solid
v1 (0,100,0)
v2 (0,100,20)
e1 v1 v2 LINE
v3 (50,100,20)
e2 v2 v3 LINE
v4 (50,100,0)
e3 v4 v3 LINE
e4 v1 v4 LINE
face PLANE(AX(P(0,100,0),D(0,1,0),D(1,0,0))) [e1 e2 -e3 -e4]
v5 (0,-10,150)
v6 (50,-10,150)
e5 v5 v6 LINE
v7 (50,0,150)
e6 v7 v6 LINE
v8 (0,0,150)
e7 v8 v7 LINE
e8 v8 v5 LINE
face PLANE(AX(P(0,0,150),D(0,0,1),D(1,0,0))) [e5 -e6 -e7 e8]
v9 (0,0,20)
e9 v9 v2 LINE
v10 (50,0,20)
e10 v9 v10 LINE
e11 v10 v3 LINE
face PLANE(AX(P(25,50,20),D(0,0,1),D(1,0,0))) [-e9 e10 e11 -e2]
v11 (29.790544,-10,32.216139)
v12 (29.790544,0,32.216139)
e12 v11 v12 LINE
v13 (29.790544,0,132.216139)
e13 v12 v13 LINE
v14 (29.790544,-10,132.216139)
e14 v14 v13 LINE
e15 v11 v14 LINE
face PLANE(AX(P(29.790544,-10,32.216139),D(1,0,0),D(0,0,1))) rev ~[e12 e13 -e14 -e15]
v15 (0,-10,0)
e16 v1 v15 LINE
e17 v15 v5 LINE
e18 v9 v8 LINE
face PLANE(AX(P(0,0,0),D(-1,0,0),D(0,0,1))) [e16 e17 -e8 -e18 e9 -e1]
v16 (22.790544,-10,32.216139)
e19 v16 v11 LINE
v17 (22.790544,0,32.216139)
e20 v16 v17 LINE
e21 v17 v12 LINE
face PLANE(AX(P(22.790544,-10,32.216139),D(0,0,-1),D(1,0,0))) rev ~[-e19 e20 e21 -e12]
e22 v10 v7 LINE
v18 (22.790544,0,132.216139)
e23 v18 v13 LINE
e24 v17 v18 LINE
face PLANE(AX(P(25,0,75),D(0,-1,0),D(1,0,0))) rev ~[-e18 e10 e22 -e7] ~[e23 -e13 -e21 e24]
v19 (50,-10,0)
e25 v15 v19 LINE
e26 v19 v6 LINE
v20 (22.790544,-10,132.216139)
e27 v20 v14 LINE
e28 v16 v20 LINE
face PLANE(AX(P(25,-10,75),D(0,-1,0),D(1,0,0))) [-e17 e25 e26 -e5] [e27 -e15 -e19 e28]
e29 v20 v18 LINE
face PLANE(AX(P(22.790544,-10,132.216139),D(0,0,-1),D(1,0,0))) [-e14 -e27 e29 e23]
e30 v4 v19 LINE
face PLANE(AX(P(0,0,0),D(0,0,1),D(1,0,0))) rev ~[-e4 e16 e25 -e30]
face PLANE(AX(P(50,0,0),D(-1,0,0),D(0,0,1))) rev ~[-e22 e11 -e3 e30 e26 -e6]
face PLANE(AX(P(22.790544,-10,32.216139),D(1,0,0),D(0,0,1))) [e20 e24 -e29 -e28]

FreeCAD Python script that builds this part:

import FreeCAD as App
import Part
import Sketcher
from FreeCAD import Vector
Q = App.Units.Quantity

doc = App.newDocument("Part")
body = doc.addObject("PartDesign::Body", "Body")

sketch1 = body.newObject("Sketcher::SketchObject", "Sketch")
sketch1.AttachmentSupport = (doc.getObject("XY_Plane"), [""])
sketch1.MapMode = "FlatFace"
sketch1.addGeometry([
    Part.LineSegment(Vector(0, 100, 0), Vector(0, 0, 0)),
    Part.LineSegment(Vector(0, 0, 0), Vector(50, 0, 0)),
    Part.LineSegment(Vector(50, 0, 0), Vector(50, 100, 0)),
    Part.LineSegment(Vector(50, 100, 0), Vector(0, 100, 0)),
], False)
sketch1.addConstraint([
    Sketcher.Constraint("Coincident", 0, 2, 1, 1),
    Sketcher.Constraint("Coincident", 1, 2, 2, 1),
    Sketcher.Constraint("Coincident", 2, 2, 3, 1),
    Sketcher.Constraint("Coincident", 3, 2, 0, 1),
    Sketcher.Constraint("Vertical", 0),
    Sketcher.Constraint("Horizontal", 1),
    Sketcher.Constraint("Vertical", 2),
    Sketcher.Constraint("Horizontal", 3),
    Sketcher.Constraint("Coincident", 0, 2, -1, 1),
    Sketcher.Constraint("DistanceX", 1, 1, 1, 2, Q("50 mm")),
    Sketcher.Constraint("DistanceY", 0, 2, 0, 1, Q("100 mm")),
])
pad1 = body.newObject("PartDesign::Pad", "Pad")
pad1.Profile = sketch1
pad1.Length = 20

sketch2 = body.newObject("Sketcher::SketchObject", "Sketch001")
sketch2.AttachmentSupport = (doc.getObject("XZ_Plane"), [""])
sketch2.MapMode = "FlatFace"
sketch2.addGeometry([
    Part.LineSegment(Vector(0, 150, 0), Vector(0, 0, 0)),
    Part.LineSegment(Vector(0, 0, 0), Vector(50, 0, 0)),
    Part.LineSegment(Vector(50, 0, 0), Vector(50, 150, 0)),
    Part.LineSegment(Vector(50, 150, 0), Vector(0, 150, 0)),
], False)
sketch2.addConstraint([
    Sketcher.Constraint("Coincident", 0, 2, 1, 1),
    Sketcher.Constraint("Coincident", 1, 2, 2, 1),
    Sketcher.Constraint("Coincident", 2, 2, 3, 1),
    Sketcher.Constraint("Coincident", 3, 2, 0, 1),
    Sketcher.Constraint("Vertical", 0),
    Sketcher.Constraint("Horizontal", 1),
    Sketcher.Constraint("Vertical", 2),
    Sketcher.Constraint("Horizontal", 3),
    Sketcher.Constraint("Coincident", 0, 2, -1, 1),
    Sketcher.Constraint("DistanceX", 1, 1, 1, 2, Q("50 mm")),
    Sketcher.Constraint("DistanceY", 0, 2, 0, 1, Q("150 mm")),
])
pad2 = body.newObject("PartDesign::Pad", "Pad001")
pad2.Profile = sketch2
pad2.Length = 10

sketch3 = body.newObject("Sketcher::SketchObject", "Sketch002")
sketch3.AttachmentSupport = (doc.getObject("XZ_Plane"), [""])
sketch3.MapMode = "FlatFace"
sketch3.AttachmentOffset = App.Placement(Vector(0, 0, 10), App.Rotation())
sketch3.addGeometry([
    Part.LineSegment(Vector(23, 132, 0), Vector(23, 32, 0)),
    Part.LineSegment(Vector(23, 32, 0), Vector(30, 32, 0)),
    Part.LineSegment(Vector(30, 32, 0), Vector(30, 132, 0)),
    Part.LineSegment(Vector(30, 132, 0), Vector(23, 132, 0)),
], False)
sketch3.addConstraint([
    Sketcher.Constraint("Coincident", 0, 2, 1, 1),
    Sketcher.Constraint("Coincident", 1, 2, 2, 1),
    Sketcher.Constraint("Coincident", 2, 2, 3, 1),
    Sketcher.Constraint("Coincident", 3, 2, 0, 1),
    Sketcher.Constraint("Vertical", 0),
    Sketcher.Constraint("Horizontal", 1),
    Sketcher.Constraint("Vertical", 2),
    Sketcher.Constraint("Horizontal", 3),
    Sketcher.Constraint("DistanceX", 1, 1, 1, 2, Q("7 mm")),
    Sketcher.Constraint("DistanceY", 0, 2, 0, 1, Q("100 mm")),
    Sketcher.Constraint("DistanceY", -1, 1, 0, 2, Q("32.216139 mm")),
    Sketcher.Constraint("DistanceX", -1, 1, 0, 2, Q("22.790544 mm")),
])
pocket1 = body.newObject("PartDesign::Pocket", "Pocket")
pocket1.Profile = sketch3
pocket1.Length = 25

doc.recompute()
